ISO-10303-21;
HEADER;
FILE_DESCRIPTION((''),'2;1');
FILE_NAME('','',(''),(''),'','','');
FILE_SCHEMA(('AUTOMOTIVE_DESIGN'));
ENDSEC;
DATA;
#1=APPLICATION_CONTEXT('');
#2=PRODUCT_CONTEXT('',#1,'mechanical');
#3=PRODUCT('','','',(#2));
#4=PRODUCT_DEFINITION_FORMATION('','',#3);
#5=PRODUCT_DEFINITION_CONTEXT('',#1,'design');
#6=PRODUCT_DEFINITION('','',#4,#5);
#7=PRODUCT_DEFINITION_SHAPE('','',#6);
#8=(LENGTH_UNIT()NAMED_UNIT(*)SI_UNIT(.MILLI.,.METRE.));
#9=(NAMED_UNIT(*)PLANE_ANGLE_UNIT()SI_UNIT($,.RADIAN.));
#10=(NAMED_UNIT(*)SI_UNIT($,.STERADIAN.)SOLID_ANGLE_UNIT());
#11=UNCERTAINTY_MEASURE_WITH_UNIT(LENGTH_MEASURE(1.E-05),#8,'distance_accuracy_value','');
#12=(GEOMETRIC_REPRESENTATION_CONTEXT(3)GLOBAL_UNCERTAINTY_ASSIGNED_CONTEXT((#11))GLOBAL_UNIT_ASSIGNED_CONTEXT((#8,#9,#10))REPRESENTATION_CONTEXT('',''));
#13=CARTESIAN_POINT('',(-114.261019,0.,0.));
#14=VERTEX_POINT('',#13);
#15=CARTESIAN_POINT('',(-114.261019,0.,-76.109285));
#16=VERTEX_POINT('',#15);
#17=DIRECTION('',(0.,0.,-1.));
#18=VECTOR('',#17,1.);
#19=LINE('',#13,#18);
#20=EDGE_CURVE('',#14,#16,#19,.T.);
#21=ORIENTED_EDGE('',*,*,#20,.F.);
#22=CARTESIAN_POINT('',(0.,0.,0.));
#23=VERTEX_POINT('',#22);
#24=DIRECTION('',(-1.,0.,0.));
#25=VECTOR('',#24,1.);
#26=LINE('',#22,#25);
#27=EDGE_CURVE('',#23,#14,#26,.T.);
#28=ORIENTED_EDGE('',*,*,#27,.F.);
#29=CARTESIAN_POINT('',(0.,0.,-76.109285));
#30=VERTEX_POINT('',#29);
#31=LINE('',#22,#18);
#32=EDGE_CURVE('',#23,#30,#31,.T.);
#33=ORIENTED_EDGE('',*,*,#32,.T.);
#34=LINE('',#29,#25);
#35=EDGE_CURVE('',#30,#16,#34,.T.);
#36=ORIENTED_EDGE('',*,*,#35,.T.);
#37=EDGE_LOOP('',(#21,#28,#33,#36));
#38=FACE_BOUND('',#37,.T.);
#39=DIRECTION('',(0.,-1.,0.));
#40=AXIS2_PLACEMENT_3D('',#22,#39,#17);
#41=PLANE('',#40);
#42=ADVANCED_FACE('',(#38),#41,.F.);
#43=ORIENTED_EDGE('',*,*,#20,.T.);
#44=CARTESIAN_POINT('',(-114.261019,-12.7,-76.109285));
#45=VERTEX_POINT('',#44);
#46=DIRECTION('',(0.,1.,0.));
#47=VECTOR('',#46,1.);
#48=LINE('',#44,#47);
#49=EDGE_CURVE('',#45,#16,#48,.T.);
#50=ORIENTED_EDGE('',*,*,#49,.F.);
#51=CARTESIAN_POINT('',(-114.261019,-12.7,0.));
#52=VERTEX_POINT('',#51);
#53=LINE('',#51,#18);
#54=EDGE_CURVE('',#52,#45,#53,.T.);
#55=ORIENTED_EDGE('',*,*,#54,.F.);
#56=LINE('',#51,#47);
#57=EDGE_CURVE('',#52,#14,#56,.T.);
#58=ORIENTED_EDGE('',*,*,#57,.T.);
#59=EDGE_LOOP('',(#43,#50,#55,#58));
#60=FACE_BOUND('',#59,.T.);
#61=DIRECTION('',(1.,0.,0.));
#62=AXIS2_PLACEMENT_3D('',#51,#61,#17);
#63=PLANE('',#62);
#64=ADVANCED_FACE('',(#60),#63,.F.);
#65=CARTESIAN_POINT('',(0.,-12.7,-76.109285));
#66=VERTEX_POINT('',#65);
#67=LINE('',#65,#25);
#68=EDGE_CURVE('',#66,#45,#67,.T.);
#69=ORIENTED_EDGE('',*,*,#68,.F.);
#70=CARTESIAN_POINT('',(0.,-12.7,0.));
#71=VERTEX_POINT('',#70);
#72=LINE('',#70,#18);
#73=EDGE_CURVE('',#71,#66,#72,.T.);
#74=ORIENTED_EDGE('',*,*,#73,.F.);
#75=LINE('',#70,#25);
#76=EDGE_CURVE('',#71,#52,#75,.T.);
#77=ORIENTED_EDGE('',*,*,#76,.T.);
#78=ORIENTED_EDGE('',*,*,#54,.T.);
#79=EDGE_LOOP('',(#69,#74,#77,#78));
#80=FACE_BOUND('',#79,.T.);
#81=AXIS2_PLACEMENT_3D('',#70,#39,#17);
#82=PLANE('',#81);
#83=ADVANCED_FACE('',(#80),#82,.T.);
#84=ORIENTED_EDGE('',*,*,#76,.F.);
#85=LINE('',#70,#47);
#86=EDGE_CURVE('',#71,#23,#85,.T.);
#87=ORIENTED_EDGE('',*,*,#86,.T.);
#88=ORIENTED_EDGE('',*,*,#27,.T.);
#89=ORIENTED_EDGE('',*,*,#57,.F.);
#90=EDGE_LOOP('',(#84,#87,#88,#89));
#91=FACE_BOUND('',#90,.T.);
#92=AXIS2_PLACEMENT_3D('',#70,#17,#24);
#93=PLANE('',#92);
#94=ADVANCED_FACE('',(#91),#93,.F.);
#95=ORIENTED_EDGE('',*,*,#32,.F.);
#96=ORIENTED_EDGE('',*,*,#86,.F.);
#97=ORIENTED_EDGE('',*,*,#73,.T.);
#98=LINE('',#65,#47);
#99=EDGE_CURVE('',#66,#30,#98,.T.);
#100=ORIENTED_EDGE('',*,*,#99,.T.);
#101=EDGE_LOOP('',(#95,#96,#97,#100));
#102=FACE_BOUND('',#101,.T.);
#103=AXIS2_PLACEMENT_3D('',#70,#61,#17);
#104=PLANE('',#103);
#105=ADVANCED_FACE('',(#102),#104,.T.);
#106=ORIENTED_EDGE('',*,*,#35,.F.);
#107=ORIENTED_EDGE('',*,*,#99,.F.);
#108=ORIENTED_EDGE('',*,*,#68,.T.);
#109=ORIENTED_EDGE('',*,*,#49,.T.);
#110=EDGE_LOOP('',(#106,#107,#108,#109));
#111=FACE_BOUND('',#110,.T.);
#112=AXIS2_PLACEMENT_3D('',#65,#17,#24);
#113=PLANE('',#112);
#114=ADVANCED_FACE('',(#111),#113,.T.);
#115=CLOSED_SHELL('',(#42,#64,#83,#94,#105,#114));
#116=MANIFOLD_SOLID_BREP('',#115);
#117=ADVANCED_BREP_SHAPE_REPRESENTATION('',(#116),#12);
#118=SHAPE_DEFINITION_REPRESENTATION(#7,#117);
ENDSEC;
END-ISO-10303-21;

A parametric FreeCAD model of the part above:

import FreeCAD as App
import Part
import Sketcher

V = App.Vector
Q = App.Units.Quantity

doc = App.newDocument("Part")
params = doc.addObject("Spreadsheet::Sheet", "Params")
for row, (alias, value) in enumerate([
    ("pad1_length", "0.5 in"),
], start=1):
    params.set(f"A{row}", alias)
    params.set(f"B{row}", "=" + value)
    params.setAlias(f"B{row}", alias)

body = doc.addObject("PartDesign::Body", "Body")

sketch1 = body.newObject("Sketcher::SketchObject", "Sketch")
sketch1.AttachmentSupport = (doc.getObject("XZ_Plane"), [""])
sketch1.MapMode = "FlatFace"
sketch1.addGeometry([
    Part.LineSegment(V(-114, -76, 0), V(-114, 0, 0)),
    Part.LineSegment(V(-114, 0, 0), V(0, 0, 0)),
    Part.LineSegment(V(0, 0, 0), V(0, -76, 0)),
    Part.LineSegment(V(0, -76, 0), V(-114, -76, 0)),
], False)
sketch1.addConstraint([
    Sketcher.Constraint("Coincident", 0, 2, 1, 1),
    Sketcher.Constraint("Coincident", 1, 2, 2, 1),
    Sketcher.Constraint("Coincident", 2, 2, 3, 1),
    Sketcher.Constraint("Coincident", 3, 2, 0, 1),
    Sketcher.Constraint("Vertical", 0),
    Sketcher.Constraint("Horizontal", 1),
    Sketcher.Constraint("Vertical", 2),
    Sketcher.Constraint("Horizontal", 3),
    Sketcher.Constraint("Coincident", 1, 2, -1, 1),
    Sketcher.Constraint("DistanceX", 1, 1, 1, 2, Q("114.261019 mm")),
    Sketcher.Constraint("DistanceY", 0, 1, 0, 2, Q("76.109285 mm")),
])
pad1 = body.newObject("PartDesign::Pad", "Pad")
pad1.Profile = sketch1
pad1.setExpression("Length", "Params.pad1_length")

doc.recompute()
